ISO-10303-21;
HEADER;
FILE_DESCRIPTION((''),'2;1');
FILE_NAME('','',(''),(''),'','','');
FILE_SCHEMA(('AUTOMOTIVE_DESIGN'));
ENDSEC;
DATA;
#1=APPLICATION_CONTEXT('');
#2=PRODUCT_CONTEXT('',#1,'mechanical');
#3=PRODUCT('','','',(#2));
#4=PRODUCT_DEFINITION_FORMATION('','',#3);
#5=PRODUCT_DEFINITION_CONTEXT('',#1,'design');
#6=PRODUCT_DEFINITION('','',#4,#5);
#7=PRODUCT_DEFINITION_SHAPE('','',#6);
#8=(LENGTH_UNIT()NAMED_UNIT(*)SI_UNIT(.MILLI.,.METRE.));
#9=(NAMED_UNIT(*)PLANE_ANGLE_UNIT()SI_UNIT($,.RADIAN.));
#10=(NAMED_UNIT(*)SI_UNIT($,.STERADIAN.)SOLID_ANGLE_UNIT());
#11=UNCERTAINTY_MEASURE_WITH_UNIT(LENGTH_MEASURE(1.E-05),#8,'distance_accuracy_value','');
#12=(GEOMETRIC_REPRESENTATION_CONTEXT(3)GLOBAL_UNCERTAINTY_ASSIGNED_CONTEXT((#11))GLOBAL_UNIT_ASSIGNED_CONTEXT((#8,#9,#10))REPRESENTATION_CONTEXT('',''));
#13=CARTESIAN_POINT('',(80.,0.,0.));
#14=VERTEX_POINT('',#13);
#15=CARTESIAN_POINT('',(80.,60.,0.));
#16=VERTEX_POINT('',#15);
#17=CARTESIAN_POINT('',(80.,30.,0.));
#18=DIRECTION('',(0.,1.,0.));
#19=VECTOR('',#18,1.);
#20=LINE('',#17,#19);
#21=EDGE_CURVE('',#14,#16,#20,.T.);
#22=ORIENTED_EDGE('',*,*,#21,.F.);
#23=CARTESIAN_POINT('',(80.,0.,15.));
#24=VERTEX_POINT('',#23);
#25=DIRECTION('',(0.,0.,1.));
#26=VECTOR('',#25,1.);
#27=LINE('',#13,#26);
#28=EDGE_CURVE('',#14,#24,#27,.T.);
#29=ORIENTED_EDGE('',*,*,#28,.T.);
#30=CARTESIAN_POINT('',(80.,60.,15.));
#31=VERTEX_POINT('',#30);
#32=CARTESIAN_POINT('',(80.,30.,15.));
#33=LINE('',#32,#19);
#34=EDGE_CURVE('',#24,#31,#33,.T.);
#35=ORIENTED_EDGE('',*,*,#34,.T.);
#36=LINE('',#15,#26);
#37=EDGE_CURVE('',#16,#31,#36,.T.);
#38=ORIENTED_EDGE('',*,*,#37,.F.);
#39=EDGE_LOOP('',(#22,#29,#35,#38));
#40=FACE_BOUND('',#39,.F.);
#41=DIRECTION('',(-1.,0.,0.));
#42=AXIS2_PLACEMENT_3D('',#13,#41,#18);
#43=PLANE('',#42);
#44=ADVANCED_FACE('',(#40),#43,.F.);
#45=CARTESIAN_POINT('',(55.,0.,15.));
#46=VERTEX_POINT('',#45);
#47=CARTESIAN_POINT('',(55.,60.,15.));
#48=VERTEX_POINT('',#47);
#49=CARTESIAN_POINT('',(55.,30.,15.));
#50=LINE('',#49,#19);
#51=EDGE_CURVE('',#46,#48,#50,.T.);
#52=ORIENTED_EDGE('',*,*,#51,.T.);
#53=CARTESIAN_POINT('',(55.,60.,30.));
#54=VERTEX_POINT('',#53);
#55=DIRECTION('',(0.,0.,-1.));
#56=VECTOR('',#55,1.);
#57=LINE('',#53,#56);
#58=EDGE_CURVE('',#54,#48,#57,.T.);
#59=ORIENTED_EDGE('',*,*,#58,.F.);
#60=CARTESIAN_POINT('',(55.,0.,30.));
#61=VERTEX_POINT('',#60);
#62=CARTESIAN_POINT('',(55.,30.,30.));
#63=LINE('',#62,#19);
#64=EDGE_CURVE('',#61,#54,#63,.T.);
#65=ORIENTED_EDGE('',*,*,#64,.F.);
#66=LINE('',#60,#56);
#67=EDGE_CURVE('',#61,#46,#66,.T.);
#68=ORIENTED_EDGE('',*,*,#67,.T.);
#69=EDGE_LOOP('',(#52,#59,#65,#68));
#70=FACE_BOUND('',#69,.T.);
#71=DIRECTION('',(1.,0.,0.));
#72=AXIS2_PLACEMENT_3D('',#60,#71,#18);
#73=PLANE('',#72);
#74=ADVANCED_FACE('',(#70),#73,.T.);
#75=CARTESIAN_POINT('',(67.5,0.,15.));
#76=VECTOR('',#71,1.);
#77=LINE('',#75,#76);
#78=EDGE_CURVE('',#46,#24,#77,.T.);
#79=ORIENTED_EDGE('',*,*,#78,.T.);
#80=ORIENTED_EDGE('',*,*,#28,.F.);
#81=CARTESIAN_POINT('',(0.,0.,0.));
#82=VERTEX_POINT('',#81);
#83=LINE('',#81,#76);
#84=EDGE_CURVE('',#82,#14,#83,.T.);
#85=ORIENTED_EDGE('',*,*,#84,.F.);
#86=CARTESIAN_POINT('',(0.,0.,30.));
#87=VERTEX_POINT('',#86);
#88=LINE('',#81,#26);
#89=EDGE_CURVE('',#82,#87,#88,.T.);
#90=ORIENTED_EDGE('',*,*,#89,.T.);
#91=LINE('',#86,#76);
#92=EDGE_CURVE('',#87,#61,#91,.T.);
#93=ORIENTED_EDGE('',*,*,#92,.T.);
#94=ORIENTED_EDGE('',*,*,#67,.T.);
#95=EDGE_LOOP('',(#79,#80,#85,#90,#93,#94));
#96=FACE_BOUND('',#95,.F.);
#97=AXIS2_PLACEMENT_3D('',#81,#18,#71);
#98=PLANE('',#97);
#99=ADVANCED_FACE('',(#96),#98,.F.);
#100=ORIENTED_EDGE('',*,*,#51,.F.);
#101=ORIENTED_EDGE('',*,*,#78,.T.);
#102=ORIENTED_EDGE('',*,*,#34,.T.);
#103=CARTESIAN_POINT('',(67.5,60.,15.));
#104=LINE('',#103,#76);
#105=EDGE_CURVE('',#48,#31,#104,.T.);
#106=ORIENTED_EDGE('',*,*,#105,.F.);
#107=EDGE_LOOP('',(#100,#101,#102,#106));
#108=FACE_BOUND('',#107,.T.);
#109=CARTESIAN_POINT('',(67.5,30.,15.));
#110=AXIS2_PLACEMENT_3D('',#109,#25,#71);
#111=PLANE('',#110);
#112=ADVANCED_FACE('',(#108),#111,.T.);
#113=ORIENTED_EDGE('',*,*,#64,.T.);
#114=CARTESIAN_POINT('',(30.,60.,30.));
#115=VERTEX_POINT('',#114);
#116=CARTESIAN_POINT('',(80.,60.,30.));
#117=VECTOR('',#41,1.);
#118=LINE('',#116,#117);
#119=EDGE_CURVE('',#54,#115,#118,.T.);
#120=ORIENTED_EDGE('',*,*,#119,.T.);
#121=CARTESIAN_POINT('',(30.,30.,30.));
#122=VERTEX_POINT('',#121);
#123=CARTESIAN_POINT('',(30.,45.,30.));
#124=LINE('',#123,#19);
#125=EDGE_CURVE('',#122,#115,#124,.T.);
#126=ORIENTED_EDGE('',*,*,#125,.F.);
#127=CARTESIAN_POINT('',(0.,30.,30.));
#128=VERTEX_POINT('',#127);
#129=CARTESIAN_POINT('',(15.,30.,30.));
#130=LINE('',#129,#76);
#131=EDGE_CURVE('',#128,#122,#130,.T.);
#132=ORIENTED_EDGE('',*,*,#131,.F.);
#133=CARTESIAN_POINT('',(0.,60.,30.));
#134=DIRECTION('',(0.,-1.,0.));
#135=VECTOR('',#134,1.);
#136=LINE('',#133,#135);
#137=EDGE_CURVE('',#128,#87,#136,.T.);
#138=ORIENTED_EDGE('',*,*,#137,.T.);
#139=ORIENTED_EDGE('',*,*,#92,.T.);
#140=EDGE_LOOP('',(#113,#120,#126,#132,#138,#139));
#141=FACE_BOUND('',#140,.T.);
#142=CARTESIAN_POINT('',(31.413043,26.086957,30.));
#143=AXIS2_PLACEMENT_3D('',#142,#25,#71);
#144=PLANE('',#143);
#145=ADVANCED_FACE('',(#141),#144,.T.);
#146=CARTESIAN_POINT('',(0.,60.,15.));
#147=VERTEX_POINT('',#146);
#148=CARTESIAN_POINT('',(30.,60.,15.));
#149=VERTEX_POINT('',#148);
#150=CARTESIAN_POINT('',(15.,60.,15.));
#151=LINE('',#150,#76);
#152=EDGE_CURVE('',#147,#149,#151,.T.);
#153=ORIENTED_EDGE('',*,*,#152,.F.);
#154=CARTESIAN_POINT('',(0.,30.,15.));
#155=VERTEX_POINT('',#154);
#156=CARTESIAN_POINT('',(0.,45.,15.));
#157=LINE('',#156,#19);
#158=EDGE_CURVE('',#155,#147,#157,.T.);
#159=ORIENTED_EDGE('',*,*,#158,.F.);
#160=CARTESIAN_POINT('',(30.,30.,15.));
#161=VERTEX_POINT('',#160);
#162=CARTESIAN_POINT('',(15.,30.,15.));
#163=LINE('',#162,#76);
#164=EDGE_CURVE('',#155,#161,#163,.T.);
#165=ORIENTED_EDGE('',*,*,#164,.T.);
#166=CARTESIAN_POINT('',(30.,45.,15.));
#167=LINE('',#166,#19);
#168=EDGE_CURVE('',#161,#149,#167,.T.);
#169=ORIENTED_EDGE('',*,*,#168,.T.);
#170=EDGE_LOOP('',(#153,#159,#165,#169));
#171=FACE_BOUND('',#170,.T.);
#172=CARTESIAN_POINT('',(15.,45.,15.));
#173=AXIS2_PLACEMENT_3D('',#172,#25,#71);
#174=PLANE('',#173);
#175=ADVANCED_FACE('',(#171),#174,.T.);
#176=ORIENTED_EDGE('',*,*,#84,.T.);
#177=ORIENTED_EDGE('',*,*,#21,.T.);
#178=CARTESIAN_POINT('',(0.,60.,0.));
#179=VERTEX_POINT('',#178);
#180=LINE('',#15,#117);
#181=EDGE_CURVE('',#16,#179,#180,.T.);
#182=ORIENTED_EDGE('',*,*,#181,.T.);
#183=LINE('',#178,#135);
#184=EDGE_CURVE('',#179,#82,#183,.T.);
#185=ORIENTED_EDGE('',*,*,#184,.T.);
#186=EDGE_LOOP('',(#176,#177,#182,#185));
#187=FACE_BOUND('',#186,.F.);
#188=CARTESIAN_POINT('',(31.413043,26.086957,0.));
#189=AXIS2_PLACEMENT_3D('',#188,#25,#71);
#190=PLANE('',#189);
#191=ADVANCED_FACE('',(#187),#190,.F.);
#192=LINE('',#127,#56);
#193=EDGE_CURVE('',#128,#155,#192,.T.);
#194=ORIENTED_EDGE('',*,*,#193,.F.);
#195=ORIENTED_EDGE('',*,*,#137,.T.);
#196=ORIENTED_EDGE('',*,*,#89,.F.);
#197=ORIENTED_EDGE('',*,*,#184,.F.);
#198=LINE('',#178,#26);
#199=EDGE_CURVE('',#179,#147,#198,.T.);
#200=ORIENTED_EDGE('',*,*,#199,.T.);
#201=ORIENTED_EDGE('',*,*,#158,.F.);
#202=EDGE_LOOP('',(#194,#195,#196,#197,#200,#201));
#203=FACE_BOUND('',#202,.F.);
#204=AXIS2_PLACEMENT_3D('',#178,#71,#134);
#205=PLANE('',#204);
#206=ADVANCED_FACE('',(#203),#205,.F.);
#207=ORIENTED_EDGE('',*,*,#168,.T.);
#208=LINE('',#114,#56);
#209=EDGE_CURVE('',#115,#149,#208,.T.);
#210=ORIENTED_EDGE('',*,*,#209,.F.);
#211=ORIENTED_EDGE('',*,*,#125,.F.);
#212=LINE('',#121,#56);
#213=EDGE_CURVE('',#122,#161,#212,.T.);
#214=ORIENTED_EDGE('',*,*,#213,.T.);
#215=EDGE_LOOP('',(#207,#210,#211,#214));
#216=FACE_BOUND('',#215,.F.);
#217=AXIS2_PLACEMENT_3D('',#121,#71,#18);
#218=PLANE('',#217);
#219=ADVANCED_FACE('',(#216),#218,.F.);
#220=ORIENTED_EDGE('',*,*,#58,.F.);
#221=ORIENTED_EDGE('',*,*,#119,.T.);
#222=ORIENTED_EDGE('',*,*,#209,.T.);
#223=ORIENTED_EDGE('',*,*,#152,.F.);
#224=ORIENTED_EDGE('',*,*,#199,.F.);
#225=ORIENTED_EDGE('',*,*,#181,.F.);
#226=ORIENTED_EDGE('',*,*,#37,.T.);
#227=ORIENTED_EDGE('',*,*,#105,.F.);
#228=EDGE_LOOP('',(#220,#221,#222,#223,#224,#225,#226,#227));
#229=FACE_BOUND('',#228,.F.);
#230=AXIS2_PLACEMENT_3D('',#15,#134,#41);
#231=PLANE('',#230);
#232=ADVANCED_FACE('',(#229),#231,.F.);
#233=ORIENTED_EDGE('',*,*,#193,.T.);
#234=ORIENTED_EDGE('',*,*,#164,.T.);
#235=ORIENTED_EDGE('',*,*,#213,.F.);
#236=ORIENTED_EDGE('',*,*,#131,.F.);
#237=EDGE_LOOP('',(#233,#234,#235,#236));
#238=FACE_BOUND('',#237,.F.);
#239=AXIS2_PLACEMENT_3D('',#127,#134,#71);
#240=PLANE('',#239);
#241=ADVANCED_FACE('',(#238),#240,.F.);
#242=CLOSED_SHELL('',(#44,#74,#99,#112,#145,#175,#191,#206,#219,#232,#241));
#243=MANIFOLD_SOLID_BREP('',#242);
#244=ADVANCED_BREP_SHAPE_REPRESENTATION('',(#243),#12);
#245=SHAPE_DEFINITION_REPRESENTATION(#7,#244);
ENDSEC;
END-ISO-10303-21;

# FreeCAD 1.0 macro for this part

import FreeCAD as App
import Part
import Sketcher
from FreeCAD import Vector
Q = App.Units.Quantity


def add_polygon(sketch, points):
    """Adds a closed chain of lines whose ends are joined by coincident constraints."""
    first, n = sketch.GeometryCount, len(points)
    for a, b in zip(points, points[1:] + points[:1]):
        sketch.addGeometry(Part.LineSegment(App.Vector(*a, 0), App.Vector(*b, 0)), False)
    for i in range(n):
        sketch.addConstraint(Sketcher.Constraint("Coincident", first + i, 2, first + (i + 1) % n, 1))

doc = App.newDocument("Part")
params = doc.addObject("Spreadsheet::Sheet", "Params")
for row, (alias, value) in enumerate([
    ("sketch1_width", "80 mm"),
    ("sketch1_height", "60 mm"),
    ("pad1_length", "30 mm"),
    ("sketch2_width", "30 mm"),
    ("sketch2_width2", "25 mm"),
    ("sketch2_height", "60 mm"),
    ("pocket1_length", "15 mm"),
], start=1):
    params.set(f"A{row}", alias)
    params.set(f"B{row}", "=" + value)
    params.setAlias(f"B{row}", alias)

body = doc.addObject("PartDesign::Body", "Body")

sketch1 = body.newObject("Sketcher::SketchObject", "Sketch")
sketch1.AttachmentSupport = (doc.getObject("XY_Plane"), [""])
sketch1.MapMode = "FlatFace"
add_polygon(sketch1, [(0, 0), (80, 0), (80, 60), (0, 60)])
sketch1.addConstraint(Sketcher.Constraint("Horizontal", 0))
sketch1.addConstraint(Sketcher.Constraint("Vertical", 1))
sketch1.addConstraint(Sketcher.Constraint("Horizontal", 2))
sketch1.addConstraint(Sketcher.Constraint("Vertical", 3))
sketch1.addConstraint(Sketcher.Constraint("Coincident", 3, 2, -1, 1))
sketch1.addConstraint(Sketcher.Constraint("DistanceX", 0, 1, 0, 2, Q("80 mm")))
sketch1.addConstraint(Sketcher.Constraint("DistanceY", 1, 1, 1, 2, Q("60 mm")))
sketch1.setExpression("Constraints[9]", "Params.sketch1_width")
sketch1.setExpression("Constraints[10]", "Params.sketch1_height")
pad1 = body.newObject("PartDesign::Pad", "Pad")
pad1.Profile = sketch1
pad1.setExpression("Length", "Params.pad1_length")

sketch2 = body.newObject("Sketcher::SketchObject", "Sketch001")
sketch2.AttachmentSupport = (doc.getObject("XY_Plane"), [""])
sketch2.MapMode = "FlatFace"
sketch2.AttachmentOffset = App.Placement(Vector(0, 0, 30), App.Rotation())
add_polygon(sketch2, [(0, 60), (0, 30), (30, 30), (30, 60)])
add_polygon(sketch2, [(55, 60), (55, 0), (80, 0), (80, 60)])
sketch2.addConstraint(Sketcher.Constraint("Vertical", 0))
sketch2.addConstraint(Sketcher.Constraint("Horizontal", 1))
sketch2.addConstraint(Sketcher.Constraint("Vertical", 2))
sketch2.addConstraint(Sketcher.Constraint("Horizontal", 3))
sketch2.addConstraint(Sketcher.Constraint("Vertical", 4))
sketch2.addConstraint(Sketcher.Constraint("Horizontal", 5))
sketch2.addConstraint(Sketcher.Constraint("Vertical", 6))
sketch2.addConstraint(Sketcher.Constraint("Horizontal", 7))
sketch2.addConstraint(Sketcher.Constraint("PointOnObject", 0, 2, -2))
sketch2.addConstraint(Sketcher.Constraint("PointOnObject", 4, 2, -1))
sketch2.addConstraint(Sketcher.Constraint("Horizontal", 3, 2, 6, 2))
sketch2.addConstraint(Sketcher.Constraint("Equal", 3, 0))
sketch2.addConstraint(Sketcher.Constraint("DistanceX", 1, 1, 1, 2, Q("30 mm")))
sketch2.addConstraint(Sketcher.Constraint("DistanceX", 5, 1, 5, 2, Q("25 mm")))
sketch2.addConstraint(Sketcher.Constraint("DistanceY", 4, 2, 4, 1, Q("60 mm")))
sketch2.addConstraint(Sketcher.Constraint("DistanceX", -1, 1, 4, 2, Q("55 mm")))
sketch2.setExpression("Constraints[20]", "Params.sketch2_width")
sketch2.setExpression("Constraints[21]", "Params.sketch2_width2")
sketch2.setExpression("Constraints[22]", "Params.sketch2_height")
pocket1 = body.newObject("PartDesign::Pocket", "Pocket")
pocket1.Profile = sketch2
pocket1.setExpression("Length", "Params.pocket1_length")

doc.recompute()
